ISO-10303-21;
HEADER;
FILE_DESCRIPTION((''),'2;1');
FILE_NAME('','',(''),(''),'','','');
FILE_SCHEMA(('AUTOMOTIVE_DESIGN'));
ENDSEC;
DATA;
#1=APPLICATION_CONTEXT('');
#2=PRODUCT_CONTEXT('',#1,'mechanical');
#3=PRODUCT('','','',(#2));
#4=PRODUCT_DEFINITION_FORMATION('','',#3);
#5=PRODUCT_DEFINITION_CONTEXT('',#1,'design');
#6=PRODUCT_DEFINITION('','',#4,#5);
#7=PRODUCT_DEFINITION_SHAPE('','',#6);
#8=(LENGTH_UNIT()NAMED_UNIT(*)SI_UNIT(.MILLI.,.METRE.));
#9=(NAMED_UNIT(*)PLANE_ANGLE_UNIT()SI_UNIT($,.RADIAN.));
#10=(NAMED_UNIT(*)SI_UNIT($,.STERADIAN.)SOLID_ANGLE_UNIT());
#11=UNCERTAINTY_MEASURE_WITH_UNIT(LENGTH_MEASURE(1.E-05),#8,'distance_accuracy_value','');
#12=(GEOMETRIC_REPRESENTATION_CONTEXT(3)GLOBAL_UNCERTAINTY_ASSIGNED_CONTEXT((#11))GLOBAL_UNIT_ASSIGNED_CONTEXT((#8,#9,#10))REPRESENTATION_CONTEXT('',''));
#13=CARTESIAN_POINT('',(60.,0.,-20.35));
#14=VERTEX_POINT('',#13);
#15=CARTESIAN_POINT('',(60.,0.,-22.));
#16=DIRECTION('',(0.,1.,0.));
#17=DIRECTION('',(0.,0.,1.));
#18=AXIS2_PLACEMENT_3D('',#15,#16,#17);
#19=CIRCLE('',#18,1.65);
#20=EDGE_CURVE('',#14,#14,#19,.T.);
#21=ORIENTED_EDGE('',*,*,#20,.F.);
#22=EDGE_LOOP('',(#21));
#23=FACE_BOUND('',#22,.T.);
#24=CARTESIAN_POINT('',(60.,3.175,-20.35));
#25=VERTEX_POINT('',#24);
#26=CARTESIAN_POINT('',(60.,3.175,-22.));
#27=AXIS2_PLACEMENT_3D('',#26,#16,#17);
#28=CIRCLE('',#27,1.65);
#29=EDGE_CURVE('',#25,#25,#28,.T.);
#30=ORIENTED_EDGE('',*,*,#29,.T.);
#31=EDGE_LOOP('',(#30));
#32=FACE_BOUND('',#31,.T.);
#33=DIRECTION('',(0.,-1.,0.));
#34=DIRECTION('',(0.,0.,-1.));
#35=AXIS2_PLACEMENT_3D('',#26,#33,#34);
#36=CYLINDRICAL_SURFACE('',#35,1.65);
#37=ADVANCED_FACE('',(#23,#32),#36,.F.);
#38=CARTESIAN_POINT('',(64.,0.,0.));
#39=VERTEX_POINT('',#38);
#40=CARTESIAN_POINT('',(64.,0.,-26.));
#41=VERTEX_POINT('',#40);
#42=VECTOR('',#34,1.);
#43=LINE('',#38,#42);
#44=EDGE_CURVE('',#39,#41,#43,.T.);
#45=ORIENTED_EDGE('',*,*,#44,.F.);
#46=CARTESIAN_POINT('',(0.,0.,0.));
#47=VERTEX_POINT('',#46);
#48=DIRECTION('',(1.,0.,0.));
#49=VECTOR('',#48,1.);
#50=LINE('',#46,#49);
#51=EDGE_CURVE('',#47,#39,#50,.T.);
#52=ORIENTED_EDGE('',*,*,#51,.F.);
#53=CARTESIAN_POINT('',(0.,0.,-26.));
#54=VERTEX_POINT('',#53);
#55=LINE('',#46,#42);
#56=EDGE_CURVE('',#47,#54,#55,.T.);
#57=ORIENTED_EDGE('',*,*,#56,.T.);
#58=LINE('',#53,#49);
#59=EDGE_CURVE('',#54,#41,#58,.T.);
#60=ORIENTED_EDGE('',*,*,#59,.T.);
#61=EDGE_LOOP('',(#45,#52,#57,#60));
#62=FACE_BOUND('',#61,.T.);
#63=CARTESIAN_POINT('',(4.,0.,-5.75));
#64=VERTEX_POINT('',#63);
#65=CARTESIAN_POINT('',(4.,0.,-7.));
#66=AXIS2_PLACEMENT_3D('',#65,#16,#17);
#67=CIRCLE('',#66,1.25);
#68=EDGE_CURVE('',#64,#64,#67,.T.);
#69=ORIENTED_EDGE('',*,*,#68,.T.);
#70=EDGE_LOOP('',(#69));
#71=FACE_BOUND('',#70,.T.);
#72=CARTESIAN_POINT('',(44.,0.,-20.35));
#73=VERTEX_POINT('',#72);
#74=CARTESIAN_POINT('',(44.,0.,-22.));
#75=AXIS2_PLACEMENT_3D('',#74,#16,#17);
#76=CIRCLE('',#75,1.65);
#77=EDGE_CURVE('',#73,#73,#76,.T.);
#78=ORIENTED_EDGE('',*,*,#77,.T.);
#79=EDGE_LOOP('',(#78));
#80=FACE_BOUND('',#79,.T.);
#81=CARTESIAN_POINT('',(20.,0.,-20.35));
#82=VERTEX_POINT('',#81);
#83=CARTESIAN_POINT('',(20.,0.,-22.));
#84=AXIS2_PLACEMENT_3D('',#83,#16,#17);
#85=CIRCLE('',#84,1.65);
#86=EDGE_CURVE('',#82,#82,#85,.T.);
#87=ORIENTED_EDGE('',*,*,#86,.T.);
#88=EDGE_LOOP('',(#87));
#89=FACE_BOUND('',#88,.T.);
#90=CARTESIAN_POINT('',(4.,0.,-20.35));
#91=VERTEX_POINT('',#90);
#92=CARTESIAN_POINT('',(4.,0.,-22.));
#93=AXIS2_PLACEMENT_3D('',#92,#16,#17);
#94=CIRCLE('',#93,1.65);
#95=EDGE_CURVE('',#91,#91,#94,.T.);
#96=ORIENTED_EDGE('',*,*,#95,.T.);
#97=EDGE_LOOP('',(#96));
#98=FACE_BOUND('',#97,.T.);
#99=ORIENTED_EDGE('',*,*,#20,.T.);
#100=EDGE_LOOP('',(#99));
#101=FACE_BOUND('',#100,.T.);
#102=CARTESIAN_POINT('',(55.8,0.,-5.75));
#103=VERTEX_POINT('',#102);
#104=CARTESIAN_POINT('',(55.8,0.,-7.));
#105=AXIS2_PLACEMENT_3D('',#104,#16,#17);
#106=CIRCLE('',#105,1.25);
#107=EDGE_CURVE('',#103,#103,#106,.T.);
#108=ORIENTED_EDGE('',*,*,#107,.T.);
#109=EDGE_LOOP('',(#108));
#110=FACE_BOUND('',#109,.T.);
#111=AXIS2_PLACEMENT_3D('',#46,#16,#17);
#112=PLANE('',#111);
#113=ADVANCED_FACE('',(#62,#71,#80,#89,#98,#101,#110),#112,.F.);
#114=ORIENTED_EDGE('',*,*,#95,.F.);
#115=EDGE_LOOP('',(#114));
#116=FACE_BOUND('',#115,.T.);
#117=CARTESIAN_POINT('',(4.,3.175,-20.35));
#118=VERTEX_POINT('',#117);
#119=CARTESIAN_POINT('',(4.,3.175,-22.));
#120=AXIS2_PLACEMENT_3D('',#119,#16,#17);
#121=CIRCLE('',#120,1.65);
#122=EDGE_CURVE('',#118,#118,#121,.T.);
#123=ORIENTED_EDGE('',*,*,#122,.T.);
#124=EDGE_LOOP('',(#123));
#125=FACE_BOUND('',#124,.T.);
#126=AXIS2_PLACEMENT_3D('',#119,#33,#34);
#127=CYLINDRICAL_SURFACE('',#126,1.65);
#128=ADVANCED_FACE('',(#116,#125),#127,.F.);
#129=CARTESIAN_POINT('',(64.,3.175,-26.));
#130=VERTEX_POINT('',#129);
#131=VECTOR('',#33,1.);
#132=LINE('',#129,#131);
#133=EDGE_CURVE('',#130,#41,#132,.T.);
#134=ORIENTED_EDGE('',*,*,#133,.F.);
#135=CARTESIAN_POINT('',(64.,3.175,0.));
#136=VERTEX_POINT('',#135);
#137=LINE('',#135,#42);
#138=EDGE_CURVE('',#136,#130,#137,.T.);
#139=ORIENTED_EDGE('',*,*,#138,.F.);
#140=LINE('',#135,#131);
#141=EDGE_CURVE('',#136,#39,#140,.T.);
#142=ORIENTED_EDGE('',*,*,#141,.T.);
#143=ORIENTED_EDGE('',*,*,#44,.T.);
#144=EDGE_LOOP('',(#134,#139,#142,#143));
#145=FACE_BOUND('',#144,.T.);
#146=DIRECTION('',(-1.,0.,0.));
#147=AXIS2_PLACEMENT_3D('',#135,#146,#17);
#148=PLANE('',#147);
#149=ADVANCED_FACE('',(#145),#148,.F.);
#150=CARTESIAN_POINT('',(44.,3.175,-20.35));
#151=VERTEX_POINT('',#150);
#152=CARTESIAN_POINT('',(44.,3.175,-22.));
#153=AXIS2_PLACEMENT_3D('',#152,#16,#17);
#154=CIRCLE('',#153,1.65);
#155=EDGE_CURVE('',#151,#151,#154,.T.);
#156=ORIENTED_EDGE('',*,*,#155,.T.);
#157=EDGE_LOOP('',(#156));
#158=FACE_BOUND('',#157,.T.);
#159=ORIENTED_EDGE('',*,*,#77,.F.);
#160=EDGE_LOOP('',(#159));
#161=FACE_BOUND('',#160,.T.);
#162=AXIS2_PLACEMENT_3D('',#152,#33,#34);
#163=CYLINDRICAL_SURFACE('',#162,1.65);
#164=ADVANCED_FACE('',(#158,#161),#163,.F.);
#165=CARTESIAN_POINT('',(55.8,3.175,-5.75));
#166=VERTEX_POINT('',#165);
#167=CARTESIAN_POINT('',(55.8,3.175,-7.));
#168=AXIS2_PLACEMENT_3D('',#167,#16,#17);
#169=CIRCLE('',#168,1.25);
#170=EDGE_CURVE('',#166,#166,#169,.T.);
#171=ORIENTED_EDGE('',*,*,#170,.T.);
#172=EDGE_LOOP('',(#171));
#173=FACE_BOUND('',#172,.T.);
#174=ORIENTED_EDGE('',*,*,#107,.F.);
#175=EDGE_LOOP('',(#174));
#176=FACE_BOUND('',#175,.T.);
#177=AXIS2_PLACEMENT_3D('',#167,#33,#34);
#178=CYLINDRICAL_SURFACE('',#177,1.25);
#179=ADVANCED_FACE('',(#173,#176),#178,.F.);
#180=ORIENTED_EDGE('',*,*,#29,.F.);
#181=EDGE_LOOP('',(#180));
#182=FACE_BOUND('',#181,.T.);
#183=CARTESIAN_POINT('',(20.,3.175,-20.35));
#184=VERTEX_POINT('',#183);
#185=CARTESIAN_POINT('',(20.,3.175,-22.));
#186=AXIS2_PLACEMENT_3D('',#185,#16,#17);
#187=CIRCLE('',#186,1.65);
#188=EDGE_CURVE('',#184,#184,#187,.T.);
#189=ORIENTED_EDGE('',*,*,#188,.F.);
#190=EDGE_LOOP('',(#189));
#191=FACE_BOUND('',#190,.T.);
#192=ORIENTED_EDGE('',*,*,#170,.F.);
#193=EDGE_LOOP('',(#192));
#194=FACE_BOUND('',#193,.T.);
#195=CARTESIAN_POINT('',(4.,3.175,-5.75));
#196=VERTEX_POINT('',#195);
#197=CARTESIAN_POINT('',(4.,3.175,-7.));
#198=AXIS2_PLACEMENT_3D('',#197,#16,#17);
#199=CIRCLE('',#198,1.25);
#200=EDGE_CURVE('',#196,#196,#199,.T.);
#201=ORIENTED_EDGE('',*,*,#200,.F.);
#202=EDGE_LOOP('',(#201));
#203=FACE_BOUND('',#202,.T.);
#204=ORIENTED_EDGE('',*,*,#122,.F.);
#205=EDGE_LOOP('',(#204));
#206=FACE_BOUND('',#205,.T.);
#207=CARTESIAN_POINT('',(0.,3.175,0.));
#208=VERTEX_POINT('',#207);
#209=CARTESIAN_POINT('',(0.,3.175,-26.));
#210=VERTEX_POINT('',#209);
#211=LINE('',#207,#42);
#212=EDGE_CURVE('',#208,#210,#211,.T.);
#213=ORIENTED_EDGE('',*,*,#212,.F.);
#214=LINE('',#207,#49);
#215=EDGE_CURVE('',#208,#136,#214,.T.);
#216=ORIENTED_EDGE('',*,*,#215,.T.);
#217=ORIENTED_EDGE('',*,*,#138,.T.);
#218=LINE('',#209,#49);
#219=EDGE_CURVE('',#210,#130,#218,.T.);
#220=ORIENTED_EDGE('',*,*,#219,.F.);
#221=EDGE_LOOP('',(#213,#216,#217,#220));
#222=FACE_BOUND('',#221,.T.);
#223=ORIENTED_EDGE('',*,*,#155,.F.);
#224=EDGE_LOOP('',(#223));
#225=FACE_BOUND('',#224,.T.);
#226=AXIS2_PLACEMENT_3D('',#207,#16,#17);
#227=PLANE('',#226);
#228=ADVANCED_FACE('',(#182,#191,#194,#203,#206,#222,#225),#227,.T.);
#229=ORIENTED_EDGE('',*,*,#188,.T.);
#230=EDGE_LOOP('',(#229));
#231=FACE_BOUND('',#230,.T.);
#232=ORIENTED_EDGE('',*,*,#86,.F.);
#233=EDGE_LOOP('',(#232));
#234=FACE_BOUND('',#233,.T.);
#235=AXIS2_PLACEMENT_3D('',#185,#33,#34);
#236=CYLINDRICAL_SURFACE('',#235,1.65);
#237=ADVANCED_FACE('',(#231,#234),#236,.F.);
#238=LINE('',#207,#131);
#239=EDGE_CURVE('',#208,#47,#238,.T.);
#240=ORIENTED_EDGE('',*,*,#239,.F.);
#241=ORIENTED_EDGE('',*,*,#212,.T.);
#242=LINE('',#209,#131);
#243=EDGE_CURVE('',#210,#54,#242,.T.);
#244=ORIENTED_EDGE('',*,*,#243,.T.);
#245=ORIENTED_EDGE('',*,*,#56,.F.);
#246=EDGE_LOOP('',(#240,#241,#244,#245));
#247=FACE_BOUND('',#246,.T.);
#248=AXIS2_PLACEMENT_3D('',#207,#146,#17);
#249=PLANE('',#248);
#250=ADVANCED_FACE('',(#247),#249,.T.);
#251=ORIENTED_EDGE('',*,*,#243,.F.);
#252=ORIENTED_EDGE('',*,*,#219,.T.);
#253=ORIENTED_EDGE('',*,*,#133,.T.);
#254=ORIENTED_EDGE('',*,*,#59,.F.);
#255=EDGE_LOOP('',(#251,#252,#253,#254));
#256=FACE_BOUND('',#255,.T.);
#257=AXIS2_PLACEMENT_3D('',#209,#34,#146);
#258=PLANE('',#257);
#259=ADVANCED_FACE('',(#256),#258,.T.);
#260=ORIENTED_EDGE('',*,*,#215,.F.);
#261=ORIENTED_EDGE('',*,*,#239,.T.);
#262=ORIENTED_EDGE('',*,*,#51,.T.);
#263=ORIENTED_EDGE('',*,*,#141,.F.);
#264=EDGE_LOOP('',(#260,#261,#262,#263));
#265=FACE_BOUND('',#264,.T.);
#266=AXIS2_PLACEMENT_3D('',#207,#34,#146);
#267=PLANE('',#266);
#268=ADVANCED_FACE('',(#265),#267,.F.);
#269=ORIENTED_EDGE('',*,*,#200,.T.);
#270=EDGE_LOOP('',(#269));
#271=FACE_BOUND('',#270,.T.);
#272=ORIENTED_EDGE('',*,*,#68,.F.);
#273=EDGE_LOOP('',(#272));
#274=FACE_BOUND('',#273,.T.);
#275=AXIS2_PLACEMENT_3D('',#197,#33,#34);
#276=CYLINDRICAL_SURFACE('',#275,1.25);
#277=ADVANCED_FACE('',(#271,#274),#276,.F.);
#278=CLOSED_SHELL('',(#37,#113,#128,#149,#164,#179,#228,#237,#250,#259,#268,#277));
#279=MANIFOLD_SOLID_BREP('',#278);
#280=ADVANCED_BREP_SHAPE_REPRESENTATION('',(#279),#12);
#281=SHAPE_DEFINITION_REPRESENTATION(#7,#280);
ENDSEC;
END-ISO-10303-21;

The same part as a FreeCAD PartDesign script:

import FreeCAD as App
import Part
import Sketcher

V = App.Vector


def add_polygon(sketch, points):
    """Adds a closed chain of lines whose ends are joined by coincident constraints."""
    first, n = sketch.GeometryCount, len(points)
    for a, b in zip(points, points[1:] + points[:1]):
        sketch.addGeometry(Part.LineSegment(App.Vector(*a, 0), App.Vector(*b, 0)), False)
    for i in range(n):
        sketch.addConstraint(Sketcher.Constraint("Coincident", first + i, 2, first + (i + 1) % n, 1))

doc = App.newDocument("Part")
body = doc.addObject("PartDesign::Body", "Body")

# Sketch on XZ plane
sketch1 = body.newObject("Sketcher::SketchObject", "Sketch")
sketch1.AttachmentSupport = (doc.getObject("XZ_Plane"), [""])
sketch1.MapMode = "FlatFace"
add_polygon(sketch1, [(0, -26), (0, 0), (64, 0), (64, -26)])  # lines 0-3
sketch1.addGeometry(Part.Circle(V(4, -7, 0), V(0, 0, 1), 1.25), False)  # 4
sketch1.addGeometry(Part.Circle(V(55.8, -7, 0), V(0, 0, 1), 1.25), False)  # 5
sketch1.addGeometry(Part.Circle(V(4, -22, 0), V(0, 0, 1), 1.65), False)  # 6
sketch1.addGeometry(Part.Circle(V(20, -22, 0), V(0, 0, 1), 1.65), False)  # 7
sketch1.addGeometry(Part.Circle(V(44, -22, 0), V(0, 0, 1), 1.65), False)  # 8
sketch1.addGeometry(Part.Circle(V(60, -22, 0), V(0, 0, 1), 1.65), False)  # 9
sketch1.addConstraint([
    Sketcher.Constraint("Vertical", 0),
    Sketcher.Constraint("Horizontal", 1),
    Sketcher.Constraint("Vertical", 2),
    Sketcher.Constraint("Horizontal", 3),
    Sketcher.Constraint("Coincident", 0, 2, -1, 1),
    Sketcher.Constraint("Equal", 4, 5),
    Sketcher.Constraint("Equal", 6, 7),
    Sketcher.Constraint("Equal", 7, 8),
    Sketcher.Constraint("Equal", 8, 9),
    Sketcher.Constraint("Horizontal", 4, 3, 5, 3),
    Sketcher.Constraint("Horizontal", 6, 3, 7, 3),
    Sketcher.Constraint("Horizontal", 7, 3, 8, 3),
    Sketcher.Constraint("Horizontal", 8, 3, 9, 3),
    Sketcher.Constraint("Vertical", 4, 3, 6, 3),
    Sketcher.Constraint("Diameter", 4, 2.5),
    Sketcher.Constraint("Diameter", 6, 3.3),
    Sketcher.Constraint("DistanceX", 1, 1, 1, 2, 64.0),
    Sketcher.Constraint("DistanceY", 0, 1, 0, 2, 26.0),
    Sketcher.Constraint("DistanceX", -1, 1, 4, 3, 4.0),
    Sketcher.Constraint("DistanceY", 4, 3, -1, 1, 7.0),
    Sketcher.Constraint("DistanceY", 6, 3, -1, 1, 22.0),
    Sketcher.Constraint("DistanceX", -1, 1, 7, 3, 20.0),
    Sketcher.Constraint("DistanceX", -1, 1, 8, 3, 44.0),
    Sketcher.Constraint("DistanceX", -1, 1, 9, 3, 60.0),
    Sketcher.Constraint("DistanceX", -1, 1, 5, 3, 55.8),
])
pad1 = body.newObject("PartDesign::Pad", "Pad")
pad1.Profile = sketch1
pad1.Length = 3.175
pad1.Reversed = True

doc.recompute()
